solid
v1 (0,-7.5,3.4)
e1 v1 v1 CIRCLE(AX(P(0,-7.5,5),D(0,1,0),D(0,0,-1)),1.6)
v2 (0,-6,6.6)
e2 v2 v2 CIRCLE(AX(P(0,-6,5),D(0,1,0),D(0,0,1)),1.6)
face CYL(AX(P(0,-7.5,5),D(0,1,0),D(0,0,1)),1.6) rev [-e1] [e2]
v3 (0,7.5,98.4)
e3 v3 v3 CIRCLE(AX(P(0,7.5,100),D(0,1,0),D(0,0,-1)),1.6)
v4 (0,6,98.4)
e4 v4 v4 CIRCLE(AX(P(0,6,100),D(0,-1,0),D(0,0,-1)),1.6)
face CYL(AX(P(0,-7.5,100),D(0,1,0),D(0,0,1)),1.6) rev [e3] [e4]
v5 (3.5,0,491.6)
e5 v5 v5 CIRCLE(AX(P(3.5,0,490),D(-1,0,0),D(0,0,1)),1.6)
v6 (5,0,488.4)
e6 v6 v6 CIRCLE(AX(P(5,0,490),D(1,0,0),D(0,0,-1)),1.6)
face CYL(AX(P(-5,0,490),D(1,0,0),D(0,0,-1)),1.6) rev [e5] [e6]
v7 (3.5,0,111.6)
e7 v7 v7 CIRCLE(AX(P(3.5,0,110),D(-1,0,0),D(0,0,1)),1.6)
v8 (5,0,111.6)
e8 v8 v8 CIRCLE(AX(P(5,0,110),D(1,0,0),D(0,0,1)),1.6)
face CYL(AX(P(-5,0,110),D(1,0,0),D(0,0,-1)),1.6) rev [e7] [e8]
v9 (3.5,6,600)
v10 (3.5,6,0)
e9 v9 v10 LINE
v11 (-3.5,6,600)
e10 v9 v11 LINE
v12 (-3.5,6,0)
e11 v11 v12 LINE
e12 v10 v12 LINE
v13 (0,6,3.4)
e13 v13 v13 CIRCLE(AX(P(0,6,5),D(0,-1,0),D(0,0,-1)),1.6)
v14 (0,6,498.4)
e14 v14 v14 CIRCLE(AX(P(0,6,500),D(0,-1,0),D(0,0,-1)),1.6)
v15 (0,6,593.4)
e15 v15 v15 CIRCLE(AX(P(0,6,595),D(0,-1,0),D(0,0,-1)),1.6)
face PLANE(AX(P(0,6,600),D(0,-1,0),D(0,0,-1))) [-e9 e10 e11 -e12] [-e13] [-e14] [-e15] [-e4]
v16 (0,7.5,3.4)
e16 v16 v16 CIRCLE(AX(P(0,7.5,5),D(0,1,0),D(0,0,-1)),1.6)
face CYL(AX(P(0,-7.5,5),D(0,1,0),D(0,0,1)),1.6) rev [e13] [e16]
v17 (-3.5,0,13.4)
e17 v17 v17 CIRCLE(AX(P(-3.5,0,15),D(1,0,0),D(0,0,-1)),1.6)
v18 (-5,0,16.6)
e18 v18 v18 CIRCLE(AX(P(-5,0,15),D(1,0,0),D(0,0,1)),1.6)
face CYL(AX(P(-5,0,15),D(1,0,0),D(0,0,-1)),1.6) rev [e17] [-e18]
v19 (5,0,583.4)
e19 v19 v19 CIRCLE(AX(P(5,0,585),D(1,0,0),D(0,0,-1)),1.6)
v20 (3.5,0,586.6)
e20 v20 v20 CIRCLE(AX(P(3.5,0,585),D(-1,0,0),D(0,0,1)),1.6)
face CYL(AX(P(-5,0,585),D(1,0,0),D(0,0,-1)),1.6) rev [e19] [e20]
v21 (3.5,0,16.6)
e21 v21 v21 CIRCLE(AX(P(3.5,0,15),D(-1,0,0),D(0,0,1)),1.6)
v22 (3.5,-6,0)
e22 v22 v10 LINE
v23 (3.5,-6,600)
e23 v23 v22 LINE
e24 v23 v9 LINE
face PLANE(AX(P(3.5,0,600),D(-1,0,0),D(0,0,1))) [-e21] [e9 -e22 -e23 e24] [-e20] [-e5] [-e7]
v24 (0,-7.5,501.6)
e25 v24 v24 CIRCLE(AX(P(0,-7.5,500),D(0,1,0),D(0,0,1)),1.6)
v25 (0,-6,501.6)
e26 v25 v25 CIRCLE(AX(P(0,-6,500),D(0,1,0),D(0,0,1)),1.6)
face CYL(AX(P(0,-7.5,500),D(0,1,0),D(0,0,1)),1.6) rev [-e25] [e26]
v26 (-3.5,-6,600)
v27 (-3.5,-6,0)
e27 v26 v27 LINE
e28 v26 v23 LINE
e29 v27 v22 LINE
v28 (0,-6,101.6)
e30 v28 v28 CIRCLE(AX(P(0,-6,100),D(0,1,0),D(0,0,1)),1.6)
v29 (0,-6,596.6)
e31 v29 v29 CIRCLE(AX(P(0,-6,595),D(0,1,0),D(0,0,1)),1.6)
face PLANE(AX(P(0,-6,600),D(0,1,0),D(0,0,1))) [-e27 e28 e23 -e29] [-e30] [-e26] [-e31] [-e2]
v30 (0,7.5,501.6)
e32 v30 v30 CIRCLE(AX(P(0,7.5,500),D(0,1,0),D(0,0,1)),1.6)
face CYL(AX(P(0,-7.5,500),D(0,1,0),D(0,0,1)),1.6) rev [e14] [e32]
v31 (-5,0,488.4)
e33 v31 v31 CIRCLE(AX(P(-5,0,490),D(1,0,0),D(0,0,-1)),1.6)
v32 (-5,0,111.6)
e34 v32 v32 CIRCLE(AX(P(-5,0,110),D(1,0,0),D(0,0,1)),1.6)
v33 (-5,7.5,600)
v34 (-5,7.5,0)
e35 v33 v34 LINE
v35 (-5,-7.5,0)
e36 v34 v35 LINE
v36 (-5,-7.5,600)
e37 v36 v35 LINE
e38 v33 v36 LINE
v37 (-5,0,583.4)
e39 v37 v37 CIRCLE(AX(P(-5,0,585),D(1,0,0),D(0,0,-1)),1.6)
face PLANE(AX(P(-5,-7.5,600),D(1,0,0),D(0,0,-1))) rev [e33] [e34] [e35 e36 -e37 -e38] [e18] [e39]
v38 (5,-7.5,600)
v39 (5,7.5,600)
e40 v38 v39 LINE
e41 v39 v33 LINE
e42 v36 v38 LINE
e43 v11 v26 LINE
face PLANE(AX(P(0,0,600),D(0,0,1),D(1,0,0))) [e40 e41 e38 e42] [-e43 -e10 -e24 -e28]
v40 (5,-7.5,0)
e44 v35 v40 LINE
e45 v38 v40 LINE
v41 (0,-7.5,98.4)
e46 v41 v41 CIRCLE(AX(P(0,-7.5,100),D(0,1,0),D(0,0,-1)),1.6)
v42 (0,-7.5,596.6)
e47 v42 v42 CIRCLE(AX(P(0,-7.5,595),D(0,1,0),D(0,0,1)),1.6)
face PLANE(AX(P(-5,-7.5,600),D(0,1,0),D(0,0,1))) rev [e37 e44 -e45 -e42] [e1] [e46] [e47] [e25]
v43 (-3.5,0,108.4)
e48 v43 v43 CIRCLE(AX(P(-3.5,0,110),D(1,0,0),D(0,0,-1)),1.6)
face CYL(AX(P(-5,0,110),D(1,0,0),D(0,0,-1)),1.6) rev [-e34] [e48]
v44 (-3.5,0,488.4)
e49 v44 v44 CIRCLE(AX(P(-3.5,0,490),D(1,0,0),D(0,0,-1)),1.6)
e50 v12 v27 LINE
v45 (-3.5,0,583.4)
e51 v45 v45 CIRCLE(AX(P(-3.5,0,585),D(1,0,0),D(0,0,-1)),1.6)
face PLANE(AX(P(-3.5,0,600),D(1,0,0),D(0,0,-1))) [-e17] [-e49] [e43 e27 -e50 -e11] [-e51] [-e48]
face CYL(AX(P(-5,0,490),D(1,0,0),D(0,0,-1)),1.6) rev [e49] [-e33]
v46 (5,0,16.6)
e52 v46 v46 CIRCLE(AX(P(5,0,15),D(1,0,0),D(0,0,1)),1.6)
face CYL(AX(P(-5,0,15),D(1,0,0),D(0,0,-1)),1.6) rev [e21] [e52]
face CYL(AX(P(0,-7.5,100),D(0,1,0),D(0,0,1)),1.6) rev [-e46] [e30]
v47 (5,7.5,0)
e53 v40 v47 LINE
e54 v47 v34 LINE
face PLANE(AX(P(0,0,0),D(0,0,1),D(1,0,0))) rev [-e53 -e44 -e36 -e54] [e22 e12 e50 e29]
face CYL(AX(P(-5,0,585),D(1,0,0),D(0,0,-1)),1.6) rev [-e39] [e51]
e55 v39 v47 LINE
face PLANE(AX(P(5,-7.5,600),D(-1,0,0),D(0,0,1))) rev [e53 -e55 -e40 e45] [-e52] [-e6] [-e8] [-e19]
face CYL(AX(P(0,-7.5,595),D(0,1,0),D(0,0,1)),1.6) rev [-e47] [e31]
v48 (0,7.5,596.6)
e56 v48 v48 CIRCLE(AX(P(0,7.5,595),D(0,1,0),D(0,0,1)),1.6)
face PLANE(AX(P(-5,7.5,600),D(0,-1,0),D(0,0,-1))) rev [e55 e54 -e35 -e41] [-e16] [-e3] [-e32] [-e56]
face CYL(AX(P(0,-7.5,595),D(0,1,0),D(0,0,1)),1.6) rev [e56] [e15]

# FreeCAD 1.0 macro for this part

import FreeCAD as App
import Part
import Sketcher
from FreeCAD import Vector


def add_polygon(sketch, points):
    """Adds a closed chain of lines whose ends are joined by coincident constraints."""
    first, n = sketch.GeometryCount, len(points)
    for a, b in zip(points, points[1:] + points[:1]):
        sketch.addGeometry(Part.LineSegment(App.Vector(*a, 0), App.Vector(*b, 0)), False)
    for i in range(n):
        sketch.addConstraint(Sketcher.Constraint("Coincident", first + i, 2, first + (i + 1) % n, 1))

doc = App.newDocument("Part")
body = doc.addObject("PartDesign::Body", "Body")

# Sketch on XY plane
sketch1 = doc.addObject("Sketcher::SketchObject", "Sketch")
body.addObject(sketch1)
sketch1.AttachmentSupport = (doc.XY_Plane, [""])
sketch1.MapMode = "FlatFace"
add_polygon(sketch1, [(-5, 7.5), (-5, -7.5), (5, -7.5), (5, 7.5)])  # lines 0-3
add_polygon(sketch1, [(3.5, -6), (-3.5, -6), (-3.5, 6), (3.5, 6)])  # lines 4-7
sketch1.addConstraint([
    Sketcher.Constraint("Vertical", 0),
    Sketcher.Constraint("Horizontal", 1),
    Sketcher.Constraint("Vertical", 2),
    Sketcher.Constraint("Horizontal", 3),
    Sketcher.Constraint("Horizontal", 4),
    Sketcher.Constraint("Vertical", 5),
    Sketcher.Constraint("Horizontal", 6),
    Sketcher.Constraint("Vertical", 7),
    Sketcher.Constraint("Symmetric", 0, 2, 2, 2, -1, 1),
    Sketcher.Constraint("Symmetric", 4, 2, 6, 2, -1, 1),
    Sketcher.Constraint("DistanceX", 1, 1, 1, 2, 10.0),
    Sketcher.Constraint("DistanceX", 4, 2, 4, 1, 7.0),
    Sketcher.Constraint("DistanceY", 0, 2, 0, 1, 15.0),
    Sketcher.Constraint("DistanceY", 5, 1, 5, 2, 12.0),
])
pad1 = doc.addObject("PartDesign::Pad", "Pad")
body.addObject(pad1)
pad1.Profile = sketch1
pad1.Length = 600

# Sketch on XZ plane
sketch2 = doc.addObject("Sketcher::SketchObject", "Sketch001")
body.addObject(sketch2)
sketch2.AttachmentSupport = (doc.XZ_Plane, [""])
sketch2.MapMode = "FlatFace"
sketch2.AttachmentOffset = App.Placement(Vector(0, 0, -7.5), App.Rotation())
sketch2.addGeometry([
    Part.Circle(Vector(0, 595, 0), Vector(0, 0, 1), 1.6),
    Part.Circle(Vector(0, 5, 0), Vector(0, 0, 1), 1.6),
    Part.Circle(Vector(0, 500, 0), Vector(0, 0, 1), 1.6),
    Part.Circle(Vector(0, 100, 0), Vector(0, 0, 1), 1.6),
], False)
sketch2.addConstraint([
    Sketcher.Constraint("Equal", 0, 1),
    Sketcher.Constraint("Equal", 1, 2),
    Sketcher.Constraint("Equal", 2, 3),
    Sketcher.Constraint("PointOnObject", 0, 3, -2),
    Sketcher.Constraint("PointOnObject", 1, 3, -2),
    Sketcher.Constraint("PointOnObject", 2, 3, -2),
    Sketcher.Constraint("PointOnObject", 3, 3, -2),
    Sketcher.Constraint("Diameter", 0, 3.2),
    Sketcher.Constraint("DistanceY", -1, 1, 0, 3, 595.0),
    Sketcher.Constraint("DistanceY", -1, 1, 1, 3, 5.0),
    Sketcher.Constraint("DistanceY", -1, 1, 2, 3, 500.0),
    Sketcher.Constraint("DistanceY", -1, 1, 3, 3, 100.0),
])
pocket1 = doc.addObject("PartDesign::Pocket", "Pocket")
body.addObject(pocket1)
pocket1.Profile = sketch2
pocket1.Type = "ThroughAll"
pocket1.Reversed = True

# Sketch on YZ plane
sketch3 = doc.addObject("Sketcher::SketchObject", "Sketch002")
body.addObject(sketch3)
sketch3.AttachmentSupport = (doc.YZ_Plane, [""])
sketch3.MapMode = "FlatFace"
sketch3.AttachmentOffset = App.Placement(Vector(0, 0, 5), App.Rotation())
sketch3.addGeometry([
    Part.Circle(Vector(0, 585, 0), Vector(0, 0, 1), 1.6),
    Part.Circle(Vector(0, 15, 0), Vector(0, 0, 1), 1.6),
    Part.Circle(Vector(0, 490, 0), Vector(0, 0, 1), 1.6),
    Part.Circle(Vector(0, 110, 0), Vector(0, 0, 1), 1.6),
], False)
sketch3.addConstraint([
    Sketcher.Constraint("Equal", 0, 1),
    Sketcher.Constraint("Equal", 1, 2),
    Sketcher.Constraint("Equal", 2, 3),
    Sketcher.Constraint("PointOnObject", 0, 3, -2),
    Sketcher.Constraint("PointOnObject", 1, 3, -2),
    Sketcher.Constraint("PointOnObject", 2, 3, -2),
    Sketcher.Constraint("PointOnObject", 3, 3, -2),
    Sketcher.Constraint("Diameter", 0, 3.2),
    Sketcher.Constraint("DistanceY", -1, 1, 0, 3, 585.0),
    Sketcher.Constraint("DistanceY", -1, 1, 1, 3, 15.0),
    Sketcher.Constraint("DistanceY", -1, 1, 2, 3, 490.0),
    Sketcher.Constraint("DistanceY", -1, 1, 3, 3, 110.0),
])
pocket2 = doc.addObject("PartDesign::Pocket", "Pocket001")
body.addObject(pocket2)
pocket2.Profile = sketch3
pocket2.Type = "ThroughAll"

doc.recompute()
